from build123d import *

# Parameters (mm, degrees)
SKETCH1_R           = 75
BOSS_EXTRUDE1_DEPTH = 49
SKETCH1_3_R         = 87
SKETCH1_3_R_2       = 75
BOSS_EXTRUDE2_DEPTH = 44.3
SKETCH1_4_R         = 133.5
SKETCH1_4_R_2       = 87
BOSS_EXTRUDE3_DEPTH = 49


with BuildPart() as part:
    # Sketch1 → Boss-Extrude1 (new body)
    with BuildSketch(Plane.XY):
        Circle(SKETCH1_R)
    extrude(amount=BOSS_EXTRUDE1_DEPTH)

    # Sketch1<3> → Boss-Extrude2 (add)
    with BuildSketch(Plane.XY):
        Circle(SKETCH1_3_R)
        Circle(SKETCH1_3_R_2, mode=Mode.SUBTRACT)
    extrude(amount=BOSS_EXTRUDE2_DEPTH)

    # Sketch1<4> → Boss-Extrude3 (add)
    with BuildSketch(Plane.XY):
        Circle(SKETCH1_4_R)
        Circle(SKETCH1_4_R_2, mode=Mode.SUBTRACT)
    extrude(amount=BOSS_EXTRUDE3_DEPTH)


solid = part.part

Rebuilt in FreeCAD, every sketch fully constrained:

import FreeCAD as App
import Part
import Sketcher

doc = App.newDocument("Part")
body = doc.addObject("PartDesign::Body", "Body")

sketch1 = body.newObject("Sketcher::SketchObject", "Sketch")
sketch1.AttachmentSupport = (doc.getObject("XY_Plane"), [""])
sketch1.MapMode = "FlatFace"
sketch1.addGeometry(Part.Circle(App.Vector(0, 0, 0), App.Vector(0, 0, 1), 75), False)
sketch1.addConstraint([
    Sketcher.Constraint("Coincident", 0, 3, -1, 1),
    Sketcher.Constraint("Diameter", 0, 150.0),
])
pad1 = body.newObject("PartDesign::Pad", "Pad")
pad1.Profile = sketch1
pad1.Length = 49

sketch2 = body.newObject("Sketcher::SketchObject", "Sketch001")
sketch2.AttachmentSupport = (doc.getObject("XY_Plane"), [""])
sketch2.MapMode = "FlatFace"
sketch2.addGeometry([
    Part.Circle(App.Vector(0, 0, 0), App.Vector(0, 0, 1), 87),
    Part.Circle(App.Vector(0, 0, 0), App.Vector(0, 0, 1), 75),
], False)
sketch2.addConstraint([
    Sketcher.Constraint("Coincident", 0, 3, -1, 1),
    Sketcher.Constraint("Coincident", 1, 3, -1, 1),
    Sketcher.Constraint("Diameter", 0, 174.0),
    Sketcher.Constraint("Diameter", 1, 150.0),
])
pad2 = body.newObject("PartDesign::Pad", "Pad001")
pad2.Profile = sketch2
pad2.Length = 44.3

sketch3 = body.newObject("Sketcher::SketchObject", "Sketch002")
sketch3.AttachmentSupport = (doc.getObject("XY_Plane"), [""])
sketch3.MapMode = "FlatFace"
sketch3.addGeometry([
    Part.Circle(App.Vector(0, 0, 0), App.Vector(0, 0, 1), 134),
    Part.Circle(App.Vector(0, 0, 0), App.Vector(0, 0, 1), 87),
], False)
sketch3.addConstraint([
    Sketcher.Constraint("Coincident", 0, 3, -1, 1),
    Sketcher.Constraint("Coincident", 1, 3, -1, 1),
    Sketcher.Constraint("Diameter", 0, 267.0),
    Sketcher.Constraint("Diameter", 1, 174.0),
])
pad3 = body.newObject("PartDesign::Pad", "Pad002")
pad3.Profile = sketch3
pad3.Length = 49

doc.recompute()
